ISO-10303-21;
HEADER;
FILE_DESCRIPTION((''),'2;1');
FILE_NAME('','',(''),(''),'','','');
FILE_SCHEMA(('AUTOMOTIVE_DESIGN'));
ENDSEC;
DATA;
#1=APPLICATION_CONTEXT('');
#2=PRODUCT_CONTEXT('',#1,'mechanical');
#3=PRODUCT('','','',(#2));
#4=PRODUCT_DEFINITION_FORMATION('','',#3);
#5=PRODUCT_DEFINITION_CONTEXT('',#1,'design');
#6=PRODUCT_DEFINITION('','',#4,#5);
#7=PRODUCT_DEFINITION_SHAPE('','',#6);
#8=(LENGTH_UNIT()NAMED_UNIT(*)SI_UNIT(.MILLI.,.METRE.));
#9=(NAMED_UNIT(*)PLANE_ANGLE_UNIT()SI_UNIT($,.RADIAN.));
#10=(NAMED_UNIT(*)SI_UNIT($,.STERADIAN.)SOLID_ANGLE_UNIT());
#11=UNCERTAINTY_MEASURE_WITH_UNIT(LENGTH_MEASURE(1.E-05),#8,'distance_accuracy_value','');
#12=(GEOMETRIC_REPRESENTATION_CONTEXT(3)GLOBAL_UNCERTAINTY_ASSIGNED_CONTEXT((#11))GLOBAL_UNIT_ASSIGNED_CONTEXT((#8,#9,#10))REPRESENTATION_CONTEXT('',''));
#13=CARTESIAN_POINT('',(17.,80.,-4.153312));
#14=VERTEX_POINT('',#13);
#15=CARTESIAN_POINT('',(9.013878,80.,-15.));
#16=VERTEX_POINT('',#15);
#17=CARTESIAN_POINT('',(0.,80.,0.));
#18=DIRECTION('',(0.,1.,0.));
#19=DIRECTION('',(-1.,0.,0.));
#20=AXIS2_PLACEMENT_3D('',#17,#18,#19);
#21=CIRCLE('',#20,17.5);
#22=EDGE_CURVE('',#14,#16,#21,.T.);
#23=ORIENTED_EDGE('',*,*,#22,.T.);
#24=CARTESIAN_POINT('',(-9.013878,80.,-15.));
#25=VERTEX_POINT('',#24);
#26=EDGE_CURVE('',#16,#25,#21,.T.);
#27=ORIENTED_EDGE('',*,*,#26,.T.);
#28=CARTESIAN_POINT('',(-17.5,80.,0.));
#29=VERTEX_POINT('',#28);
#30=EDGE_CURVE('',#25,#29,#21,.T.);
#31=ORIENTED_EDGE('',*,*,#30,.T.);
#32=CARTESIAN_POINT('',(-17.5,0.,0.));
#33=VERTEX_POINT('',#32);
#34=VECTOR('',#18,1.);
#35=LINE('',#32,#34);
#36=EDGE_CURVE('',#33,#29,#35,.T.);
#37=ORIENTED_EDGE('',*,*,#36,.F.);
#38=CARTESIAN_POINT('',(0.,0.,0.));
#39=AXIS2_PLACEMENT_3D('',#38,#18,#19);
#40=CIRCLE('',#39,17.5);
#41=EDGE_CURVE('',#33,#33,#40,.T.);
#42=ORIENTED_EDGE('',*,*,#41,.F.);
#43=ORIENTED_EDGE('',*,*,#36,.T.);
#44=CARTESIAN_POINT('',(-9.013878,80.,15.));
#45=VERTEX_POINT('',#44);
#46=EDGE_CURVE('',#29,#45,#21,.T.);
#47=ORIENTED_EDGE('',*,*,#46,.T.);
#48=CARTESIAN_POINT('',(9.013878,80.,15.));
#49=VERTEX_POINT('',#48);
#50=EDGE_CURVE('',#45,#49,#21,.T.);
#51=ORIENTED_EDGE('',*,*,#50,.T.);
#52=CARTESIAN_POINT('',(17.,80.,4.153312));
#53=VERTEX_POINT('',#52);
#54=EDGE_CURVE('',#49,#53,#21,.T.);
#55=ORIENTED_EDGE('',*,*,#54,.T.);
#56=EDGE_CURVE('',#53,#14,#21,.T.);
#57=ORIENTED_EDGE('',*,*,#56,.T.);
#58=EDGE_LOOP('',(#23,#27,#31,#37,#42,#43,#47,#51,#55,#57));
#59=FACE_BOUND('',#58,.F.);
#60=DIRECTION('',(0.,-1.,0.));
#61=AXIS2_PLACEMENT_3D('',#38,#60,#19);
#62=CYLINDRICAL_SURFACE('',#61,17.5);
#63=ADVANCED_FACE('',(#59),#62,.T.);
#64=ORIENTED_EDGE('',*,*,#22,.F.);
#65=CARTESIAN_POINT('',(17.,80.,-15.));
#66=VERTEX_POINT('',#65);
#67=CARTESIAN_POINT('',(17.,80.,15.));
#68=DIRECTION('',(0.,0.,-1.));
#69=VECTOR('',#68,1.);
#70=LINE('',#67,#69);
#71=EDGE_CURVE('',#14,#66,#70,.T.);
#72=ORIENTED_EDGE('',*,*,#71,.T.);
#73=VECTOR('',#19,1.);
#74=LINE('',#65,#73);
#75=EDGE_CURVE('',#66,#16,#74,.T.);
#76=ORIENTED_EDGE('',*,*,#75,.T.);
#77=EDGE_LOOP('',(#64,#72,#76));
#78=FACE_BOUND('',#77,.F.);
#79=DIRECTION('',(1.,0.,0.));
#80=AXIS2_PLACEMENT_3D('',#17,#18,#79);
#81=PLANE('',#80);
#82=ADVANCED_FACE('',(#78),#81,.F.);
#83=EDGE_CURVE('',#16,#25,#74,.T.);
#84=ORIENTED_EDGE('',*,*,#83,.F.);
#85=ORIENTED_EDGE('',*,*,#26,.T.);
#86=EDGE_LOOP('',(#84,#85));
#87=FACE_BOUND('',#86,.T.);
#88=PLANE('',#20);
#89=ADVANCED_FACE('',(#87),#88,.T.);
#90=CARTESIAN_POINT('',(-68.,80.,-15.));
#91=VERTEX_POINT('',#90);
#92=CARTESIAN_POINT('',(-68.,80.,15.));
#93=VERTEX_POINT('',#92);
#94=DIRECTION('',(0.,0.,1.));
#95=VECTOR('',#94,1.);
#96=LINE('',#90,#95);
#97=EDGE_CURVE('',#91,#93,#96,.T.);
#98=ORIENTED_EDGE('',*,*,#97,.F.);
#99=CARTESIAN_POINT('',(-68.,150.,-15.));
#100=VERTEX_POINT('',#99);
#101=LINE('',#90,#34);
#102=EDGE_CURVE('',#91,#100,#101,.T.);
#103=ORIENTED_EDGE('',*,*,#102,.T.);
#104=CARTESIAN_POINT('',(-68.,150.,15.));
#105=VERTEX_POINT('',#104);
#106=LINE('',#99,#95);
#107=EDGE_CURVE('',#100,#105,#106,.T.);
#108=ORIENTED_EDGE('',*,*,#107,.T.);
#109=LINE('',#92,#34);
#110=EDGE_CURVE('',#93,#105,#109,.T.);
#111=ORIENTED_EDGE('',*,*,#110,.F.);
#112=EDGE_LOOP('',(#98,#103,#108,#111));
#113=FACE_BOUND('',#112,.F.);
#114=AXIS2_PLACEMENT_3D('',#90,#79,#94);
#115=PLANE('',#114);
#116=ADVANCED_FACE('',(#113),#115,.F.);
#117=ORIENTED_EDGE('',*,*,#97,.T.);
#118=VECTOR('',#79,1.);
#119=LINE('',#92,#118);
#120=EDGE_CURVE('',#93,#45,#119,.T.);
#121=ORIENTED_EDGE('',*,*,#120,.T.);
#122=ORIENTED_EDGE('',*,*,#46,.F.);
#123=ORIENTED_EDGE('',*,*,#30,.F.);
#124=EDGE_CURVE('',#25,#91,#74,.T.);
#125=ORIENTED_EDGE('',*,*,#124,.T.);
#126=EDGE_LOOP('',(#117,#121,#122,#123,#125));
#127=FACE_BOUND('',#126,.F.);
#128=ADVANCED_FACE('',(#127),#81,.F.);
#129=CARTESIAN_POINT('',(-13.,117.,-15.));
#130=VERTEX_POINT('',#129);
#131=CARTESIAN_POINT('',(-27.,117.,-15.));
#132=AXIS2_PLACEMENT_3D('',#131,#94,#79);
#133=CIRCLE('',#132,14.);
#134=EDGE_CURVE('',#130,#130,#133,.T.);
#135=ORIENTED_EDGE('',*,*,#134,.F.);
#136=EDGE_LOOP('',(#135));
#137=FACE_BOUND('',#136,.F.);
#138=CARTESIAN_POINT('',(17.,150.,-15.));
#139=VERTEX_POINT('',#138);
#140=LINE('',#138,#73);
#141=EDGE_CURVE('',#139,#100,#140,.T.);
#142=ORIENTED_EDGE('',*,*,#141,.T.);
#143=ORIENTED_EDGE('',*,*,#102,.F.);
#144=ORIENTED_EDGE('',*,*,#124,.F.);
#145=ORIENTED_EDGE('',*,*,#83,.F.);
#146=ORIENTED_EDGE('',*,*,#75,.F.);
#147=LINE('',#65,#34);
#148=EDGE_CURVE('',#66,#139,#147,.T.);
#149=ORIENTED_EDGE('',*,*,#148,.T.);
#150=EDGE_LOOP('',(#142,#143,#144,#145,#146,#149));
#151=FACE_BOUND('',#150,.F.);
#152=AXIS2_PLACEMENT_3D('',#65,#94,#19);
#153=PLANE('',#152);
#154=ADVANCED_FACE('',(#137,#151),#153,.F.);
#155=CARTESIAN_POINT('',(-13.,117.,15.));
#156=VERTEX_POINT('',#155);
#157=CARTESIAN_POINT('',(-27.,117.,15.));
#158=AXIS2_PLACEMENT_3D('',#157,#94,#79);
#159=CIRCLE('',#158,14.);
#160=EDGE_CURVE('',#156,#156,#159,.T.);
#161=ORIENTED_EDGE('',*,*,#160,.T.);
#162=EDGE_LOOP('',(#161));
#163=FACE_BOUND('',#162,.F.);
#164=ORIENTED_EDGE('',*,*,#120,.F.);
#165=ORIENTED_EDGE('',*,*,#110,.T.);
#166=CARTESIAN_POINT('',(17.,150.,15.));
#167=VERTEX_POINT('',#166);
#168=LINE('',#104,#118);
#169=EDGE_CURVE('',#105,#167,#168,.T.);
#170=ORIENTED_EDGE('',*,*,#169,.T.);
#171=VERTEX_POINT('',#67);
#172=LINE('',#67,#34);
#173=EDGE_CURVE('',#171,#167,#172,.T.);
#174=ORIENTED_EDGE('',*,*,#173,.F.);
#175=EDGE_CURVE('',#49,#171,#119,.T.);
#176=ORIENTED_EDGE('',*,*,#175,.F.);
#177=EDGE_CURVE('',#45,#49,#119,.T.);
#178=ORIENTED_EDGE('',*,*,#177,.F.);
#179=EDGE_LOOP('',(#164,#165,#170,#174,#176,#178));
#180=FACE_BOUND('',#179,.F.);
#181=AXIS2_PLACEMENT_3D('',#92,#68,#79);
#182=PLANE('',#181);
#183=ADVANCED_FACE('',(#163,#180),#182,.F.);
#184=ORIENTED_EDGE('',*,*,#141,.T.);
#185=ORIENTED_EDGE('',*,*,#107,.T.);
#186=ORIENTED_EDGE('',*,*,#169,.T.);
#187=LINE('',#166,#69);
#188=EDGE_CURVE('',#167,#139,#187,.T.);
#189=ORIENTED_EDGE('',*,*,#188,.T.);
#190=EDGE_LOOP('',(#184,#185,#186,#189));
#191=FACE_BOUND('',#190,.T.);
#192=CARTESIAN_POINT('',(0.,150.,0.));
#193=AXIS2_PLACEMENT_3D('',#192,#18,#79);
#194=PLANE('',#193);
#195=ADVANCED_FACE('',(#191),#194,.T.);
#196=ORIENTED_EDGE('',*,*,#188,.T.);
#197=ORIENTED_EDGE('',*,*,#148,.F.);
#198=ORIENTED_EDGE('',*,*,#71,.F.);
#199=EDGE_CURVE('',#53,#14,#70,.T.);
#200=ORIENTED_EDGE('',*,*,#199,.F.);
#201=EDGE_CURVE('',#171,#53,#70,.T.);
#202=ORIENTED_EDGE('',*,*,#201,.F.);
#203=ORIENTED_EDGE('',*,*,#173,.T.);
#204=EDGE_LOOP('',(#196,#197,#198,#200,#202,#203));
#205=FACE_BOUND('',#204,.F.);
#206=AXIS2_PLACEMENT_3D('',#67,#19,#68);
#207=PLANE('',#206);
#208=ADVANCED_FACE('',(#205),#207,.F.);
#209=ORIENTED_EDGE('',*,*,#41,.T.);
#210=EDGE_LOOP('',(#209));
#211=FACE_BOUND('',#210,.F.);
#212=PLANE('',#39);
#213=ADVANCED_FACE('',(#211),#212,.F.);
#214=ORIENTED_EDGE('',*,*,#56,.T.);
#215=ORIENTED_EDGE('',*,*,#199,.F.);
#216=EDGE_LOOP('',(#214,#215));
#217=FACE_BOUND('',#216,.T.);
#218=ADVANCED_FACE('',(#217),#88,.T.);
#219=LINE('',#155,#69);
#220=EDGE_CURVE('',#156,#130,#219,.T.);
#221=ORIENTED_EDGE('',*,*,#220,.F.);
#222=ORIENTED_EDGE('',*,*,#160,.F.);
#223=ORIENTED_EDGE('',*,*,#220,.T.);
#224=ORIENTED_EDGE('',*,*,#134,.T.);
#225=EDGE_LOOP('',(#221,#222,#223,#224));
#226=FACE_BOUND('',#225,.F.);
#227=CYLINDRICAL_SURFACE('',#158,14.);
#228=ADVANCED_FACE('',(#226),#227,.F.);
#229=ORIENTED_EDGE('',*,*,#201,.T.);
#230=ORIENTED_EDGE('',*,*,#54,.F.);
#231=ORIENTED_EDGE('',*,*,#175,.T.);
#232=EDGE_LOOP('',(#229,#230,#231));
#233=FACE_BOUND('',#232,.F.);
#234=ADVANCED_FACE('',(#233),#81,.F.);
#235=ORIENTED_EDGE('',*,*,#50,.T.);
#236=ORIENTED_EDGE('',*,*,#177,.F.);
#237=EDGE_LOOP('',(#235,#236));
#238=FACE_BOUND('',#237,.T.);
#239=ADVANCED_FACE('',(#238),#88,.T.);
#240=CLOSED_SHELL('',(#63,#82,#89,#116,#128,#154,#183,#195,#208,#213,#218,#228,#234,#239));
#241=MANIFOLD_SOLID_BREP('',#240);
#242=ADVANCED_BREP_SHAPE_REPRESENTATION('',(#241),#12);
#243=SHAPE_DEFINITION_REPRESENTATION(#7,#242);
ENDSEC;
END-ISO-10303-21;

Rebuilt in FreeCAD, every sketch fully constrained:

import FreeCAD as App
import Part
import Sketcher
from FreeCAD import Vector

doc = App.newDocument("Part")
body = doc.addObject("PartDesign::Body", "Body")

# Sketch on XZ plane
sketch1 = doc.addObject("Sketcher::SketchObject", "Sketch")
body.addObject(sketch1)
sketch1.AttachmentSupport = (doc.XZ_Plane, [""])
sketch1.MapMode = "FlatFace"
sketch1.addGeometry(Part.Circle(Vector(0, 0, 0), Vector(0, 0, 1), 18), False)
sketch1.addConstraint([
    Sketcher.Constraint("Coincident", 0, 3, -1, 1),
    Sketcher.Constraint("Diameter", 0, 35.0),
])
pad1 = doc.addObject("PartDesign::Pad", "Pad")
body.addObject(pad1)
pad1.Profile = sketch1
pad1.Length = 80
pad1.Reversed = True

# Sketch on XZ plane
sketch2 = doc.addObject("Sketcher::SketchObject", "Sketch001")
body.addObject(sketch2)
sketch2.AttachmentSupport = (doc.XZ_Plane, [""])
sketch2.MapMode = "FlatFace"
sketch2.AttachmentOffset = App.Placement(Vector(0, 0, -80), App.Rotation())
sketch2.addGeometry([
    Part.LineSegment(Vector(-68, -15, 0), Vector(-68, 15, 0)),
    Part.LineSegment(Vector(-68, 15, 0), Vector(17, 15, 0)),
    Part.LineSegment(Vector(17, 15, 0), Vector(17, -15, 0)),
    Part.LineSegment(Vector(17, -15, 0), Vector(-68, -15, 0)),
], False)
sketch2.addConstraint([
    Sketcher.Constraint("Coincident", 0, 2, 1, 1),
    Sketcher.Constraint("Coincident", 1, 2, 2, 1),
    Sketcher.Constraint("Coincident", 2, 2, 3, 1),
    Sketcher.Constraint("Coincident", 3, 2, 0, 1),
    Sketcher.Constraint("Vertical", 0),
    Sketcher.Constraint("Horizontal", 1),
    Sketcher.Constraint("Vertical", 2),
    Sketcher.Constraint("Horizontal", 3),
    Sketcher.Constraint("DistanceX", 1, 1, 1, 2, 85.0),
    Sketcher.Constraint("DistanceY", 0, 1, 0, 2, 30.0),
    Sketcher.Constraint("DistanceX", 0, 2, -1, 1, 68.0),
    Sketcher.Constraint("DistanceY", -1, 1, 0, 2, 15.0),
])
pad2 = doc.addObject("PartDesign::Pad", "Pad001")
body.addObject(pad2)
pad2.Profile = sketch2
pad2.Length = 70
pad2.Reversed = True

# Sketch on XY plane
sketch3 = doc.addObject("Sketcher::SketchObject", "Sketch002")
body.addObject(sketch3)
sketch3.AttachmentSupport = (doc.XY_Plane, [""])
sketch3.MapMode = "FlatFace"
sketch3.AttachmentOffset = App.Placement(Vector(0, 0, 15), App.Rotation())
sketch3.addGeometry(Part.Circle(Vector(-27, 117, 0), Vector(0, 0, 1), 14), False)
sketch3.addConstraint([
    Sketcher.Constraint("Diameter", 0, 28.0),
    Sketcher.Constraint("DistanceX", 0, 3, -1, 1, 27.0),
    Sketcher.Constraint("DistanceY", -1, 1, 0, 3, 117.0),
])
pocket1 = doc.addObject("PartDesign::Pocket", "Pocket")
body.addObject(pocket1)
pocket1.Profile = sketch3
pocket1.Type = "ThroughAll"

doc.recompute()
